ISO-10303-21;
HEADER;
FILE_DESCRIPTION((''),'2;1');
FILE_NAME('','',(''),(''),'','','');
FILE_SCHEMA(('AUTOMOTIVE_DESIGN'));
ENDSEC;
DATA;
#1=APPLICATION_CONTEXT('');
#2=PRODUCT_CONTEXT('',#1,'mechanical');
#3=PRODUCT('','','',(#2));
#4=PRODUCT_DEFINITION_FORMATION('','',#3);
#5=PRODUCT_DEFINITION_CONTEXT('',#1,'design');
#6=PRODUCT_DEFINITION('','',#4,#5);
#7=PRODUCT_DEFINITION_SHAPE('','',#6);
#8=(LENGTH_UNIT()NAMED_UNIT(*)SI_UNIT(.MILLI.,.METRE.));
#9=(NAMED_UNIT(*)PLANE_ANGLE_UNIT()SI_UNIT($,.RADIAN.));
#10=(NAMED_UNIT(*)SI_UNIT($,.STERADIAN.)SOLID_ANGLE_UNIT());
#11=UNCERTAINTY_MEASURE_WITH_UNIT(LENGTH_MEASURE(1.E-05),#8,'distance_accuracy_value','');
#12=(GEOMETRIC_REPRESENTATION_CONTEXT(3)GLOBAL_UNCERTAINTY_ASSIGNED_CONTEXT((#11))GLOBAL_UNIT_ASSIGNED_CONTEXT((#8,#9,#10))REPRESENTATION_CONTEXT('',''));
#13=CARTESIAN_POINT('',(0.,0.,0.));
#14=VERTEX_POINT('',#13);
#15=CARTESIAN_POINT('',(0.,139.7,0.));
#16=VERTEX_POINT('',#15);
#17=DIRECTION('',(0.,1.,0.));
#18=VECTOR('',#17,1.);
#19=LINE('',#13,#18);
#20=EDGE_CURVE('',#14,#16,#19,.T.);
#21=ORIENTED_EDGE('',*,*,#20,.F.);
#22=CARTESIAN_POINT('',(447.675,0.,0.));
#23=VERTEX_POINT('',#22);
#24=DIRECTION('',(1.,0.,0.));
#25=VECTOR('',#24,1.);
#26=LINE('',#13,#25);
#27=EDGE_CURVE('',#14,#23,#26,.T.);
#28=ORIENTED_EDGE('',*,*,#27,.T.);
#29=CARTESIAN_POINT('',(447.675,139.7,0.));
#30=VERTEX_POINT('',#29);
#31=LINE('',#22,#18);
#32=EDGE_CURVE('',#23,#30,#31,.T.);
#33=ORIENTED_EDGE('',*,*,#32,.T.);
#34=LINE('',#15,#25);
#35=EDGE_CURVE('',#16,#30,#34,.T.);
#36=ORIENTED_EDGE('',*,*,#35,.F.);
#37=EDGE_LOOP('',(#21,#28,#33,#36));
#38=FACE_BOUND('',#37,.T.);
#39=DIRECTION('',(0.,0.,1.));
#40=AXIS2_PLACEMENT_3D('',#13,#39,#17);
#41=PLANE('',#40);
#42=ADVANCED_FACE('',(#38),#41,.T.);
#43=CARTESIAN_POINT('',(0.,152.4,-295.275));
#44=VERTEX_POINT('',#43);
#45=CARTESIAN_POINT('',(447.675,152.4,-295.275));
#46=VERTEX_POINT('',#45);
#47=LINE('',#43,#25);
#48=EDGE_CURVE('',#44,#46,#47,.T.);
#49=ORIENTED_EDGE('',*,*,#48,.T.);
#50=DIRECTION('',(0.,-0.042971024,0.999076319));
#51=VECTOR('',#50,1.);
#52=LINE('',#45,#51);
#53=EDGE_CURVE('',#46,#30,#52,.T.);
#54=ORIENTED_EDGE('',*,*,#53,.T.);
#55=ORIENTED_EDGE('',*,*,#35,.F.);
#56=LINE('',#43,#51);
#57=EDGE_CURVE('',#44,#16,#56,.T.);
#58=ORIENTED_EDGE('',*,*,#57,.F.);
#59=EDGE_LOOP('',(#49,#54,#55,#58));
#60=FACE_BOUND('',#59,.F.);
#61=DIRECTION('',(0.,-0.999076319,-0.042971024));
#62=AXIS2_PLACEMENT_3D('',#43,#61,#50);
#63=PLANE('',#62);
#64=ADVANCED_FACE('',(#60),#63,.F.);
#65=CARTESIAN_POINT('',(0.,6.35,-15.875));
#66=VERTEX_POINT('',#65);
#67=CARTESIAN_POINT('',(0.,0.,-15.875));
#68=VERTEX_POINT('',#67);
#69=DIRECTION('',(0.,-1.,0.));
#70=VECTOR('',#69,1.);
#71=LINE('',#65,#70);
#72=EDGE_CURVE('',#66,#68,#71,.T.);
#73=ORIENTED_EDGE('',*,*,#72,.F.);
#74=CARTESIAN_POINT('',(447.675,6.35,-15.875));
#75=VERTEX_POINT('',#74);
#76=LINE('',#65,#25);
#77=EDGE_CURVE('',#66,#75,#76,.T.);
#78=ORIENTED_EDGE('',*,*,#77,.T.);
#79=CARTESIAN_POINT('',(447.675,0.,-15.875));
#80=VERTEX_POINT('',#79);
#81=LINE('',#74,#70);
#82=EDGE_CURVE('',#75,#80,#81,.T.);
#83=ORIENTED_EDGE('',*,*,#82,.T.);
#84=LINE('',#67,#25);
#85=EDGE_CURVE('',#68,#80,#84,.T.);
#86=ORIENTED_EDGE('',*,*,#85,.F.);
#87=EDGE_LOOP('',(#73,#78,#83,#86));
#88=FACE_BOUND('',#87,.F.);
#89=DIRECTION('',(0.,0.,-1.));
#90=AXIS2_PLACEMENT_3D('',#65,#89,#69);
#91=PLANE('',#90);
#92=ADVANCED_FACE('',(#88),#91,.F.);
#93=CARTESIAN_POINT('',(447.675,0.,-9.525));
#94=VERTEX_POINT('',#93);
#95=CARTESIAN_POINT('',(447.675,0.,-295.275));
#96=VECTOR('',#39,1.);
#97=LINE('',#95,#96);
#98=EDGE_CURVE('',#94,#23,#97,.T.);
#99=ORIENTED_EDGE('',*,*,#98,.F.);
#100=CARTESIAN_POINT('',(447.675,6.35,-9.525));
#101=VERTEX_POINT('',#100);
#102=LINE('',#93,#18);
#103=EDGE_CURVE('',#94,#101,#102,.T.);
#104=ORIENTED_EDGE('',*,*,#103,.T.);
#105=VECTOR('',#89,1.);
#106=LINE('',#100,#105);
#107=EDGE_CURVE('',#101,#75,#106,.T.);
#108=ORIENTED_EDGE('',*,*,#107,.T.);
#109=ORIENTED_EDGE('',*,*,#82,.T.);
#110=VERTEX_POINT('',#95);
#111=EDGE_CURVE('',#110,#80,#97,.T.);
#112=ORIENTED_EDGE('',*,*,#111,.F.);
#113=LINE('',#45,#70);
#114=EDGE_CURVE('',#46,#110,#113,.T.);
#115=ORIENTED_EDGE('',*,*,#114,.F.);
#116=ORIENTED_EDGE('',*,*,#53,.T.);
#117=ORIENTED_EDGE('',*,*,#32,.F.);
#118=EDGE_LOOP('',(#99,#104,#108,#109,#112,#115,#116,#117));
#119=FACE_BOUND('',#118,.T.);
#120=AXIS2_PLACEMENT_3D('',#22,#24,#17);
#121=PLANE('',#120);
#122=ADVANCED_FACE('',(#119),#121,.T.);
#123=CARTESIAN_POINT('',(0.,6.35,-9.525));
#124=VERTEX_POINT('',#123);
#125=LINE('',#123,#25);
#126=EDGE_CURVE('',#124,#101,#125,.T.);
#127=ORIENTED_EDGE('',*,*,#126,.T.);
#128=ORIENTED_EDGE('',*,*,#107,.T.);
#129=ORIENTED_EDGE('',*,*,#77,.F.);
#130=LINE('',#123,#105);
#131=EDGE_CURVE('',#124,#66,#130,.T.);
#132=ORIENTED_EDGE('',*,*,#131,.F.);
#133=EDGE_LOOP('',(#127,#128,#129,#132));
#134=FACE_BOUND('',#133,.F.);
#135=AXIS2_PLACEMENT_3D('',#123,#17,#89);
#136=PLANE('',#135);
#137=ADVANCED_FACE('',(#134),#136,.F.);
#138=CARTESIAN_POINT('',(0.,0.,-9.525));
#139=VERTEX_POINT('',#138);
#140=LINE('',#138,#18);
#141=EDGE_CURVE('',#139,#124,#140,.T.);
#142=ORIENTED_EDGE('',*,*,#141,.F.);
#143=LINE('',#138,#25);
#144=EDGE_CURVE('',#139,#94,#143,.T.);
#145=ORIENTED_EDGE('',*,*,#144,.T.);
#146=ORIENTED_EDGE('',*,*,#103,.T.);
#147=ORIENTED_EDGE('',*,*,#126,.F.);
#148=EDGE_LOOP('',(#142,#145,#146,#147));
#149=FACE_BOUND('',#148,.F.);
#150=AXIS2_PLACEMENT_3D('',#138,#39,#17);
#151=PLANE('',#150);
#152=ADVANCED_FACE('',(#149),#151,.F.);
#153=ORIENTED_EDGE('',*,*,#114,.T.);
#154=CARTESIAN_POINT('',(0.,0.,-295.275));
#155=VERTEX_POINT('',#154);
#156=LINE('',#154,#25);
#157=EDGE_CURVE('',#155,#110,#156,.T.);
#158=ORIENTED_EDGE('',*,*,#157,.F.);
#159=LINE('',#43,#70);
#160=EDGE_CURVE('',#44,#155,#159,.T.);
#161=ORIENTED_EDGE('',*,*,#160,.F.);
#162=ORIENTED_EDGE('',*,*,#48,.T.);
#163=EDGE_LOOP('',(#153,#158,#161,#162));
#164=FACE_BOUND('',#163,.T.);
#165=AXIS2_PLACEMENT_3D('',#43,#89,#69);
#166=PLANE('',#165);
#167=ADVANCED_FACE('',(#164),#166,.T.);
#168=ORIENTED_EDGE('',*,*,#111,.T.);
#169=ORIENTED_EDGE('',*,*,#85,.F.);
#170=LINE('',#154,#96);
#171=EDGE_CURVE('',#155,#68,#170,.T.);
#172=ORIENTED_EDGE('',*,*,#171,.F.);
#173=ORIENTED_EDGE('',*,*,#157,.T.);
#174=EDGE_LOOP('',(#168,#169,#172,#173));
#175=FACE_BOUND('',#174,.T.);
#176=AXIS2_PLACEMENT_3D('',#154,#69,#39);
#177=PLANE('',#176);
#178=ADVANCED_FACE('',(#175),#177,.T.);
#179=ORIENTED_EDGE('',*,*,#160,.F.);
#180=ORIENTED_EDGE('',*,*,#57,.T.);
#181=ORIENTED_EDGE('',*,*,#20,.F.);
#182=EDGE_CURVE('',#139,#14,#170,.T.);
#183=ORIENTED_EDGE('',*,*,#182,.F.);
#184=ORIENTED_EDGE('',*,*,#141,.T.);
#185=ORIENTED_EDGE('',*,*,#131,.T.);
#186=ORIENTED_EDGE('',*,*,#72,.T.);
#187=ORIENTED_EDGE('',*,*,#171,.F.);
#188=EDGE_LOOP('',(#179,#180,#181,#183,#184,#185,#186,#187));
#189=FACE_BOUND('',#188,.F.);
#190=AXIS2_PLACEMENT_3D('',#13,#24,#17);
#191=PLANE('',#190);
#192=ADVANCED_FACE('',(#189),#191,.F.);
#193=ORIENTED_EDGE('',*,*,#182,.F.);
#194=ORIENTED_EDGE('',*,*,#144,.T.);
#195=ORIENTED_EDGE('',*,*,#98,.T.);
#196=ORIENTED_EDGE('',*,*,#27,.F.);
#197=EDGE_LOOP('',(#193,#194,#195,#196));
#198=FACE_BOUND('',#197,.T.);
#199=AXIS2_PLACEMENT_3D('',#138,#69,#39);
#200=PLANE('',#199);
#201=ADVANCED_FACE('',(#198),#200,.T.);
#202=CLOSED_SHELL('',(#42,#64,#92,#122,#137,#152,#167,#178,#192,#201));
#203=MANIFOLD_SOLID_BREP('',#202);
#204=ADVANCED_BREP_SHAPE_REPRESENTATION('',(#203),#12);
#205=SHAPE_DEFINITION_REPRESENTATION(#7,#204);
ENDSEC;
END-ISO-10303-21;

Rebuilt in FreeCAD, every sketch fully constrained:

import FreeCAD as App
import Part
import Sketcher

V = App.Vector
Q = App.Units.Quantity


def add_polygon(sketch, points):
    """Adds a closed chain of lines whose ends are joined by coincident constraints."""
    first, n = sketch.GeometryCount, len(points)
    for a, b in zip(points, points[1:] + points[:1]):
        sketch.addGeometry(Part.LineSegment(App.Vector(*a, 0), App.Vector(*b, 0)), False)
    for i in range(n):
        sketch.addConstraint(Sketcher.Constraint("Coincident", first + i, 2, first + (i + 1) % n, 1))

doc = App.newDocument("Part")
body = doc.addObject("PartDesign::Body", "Body")

# Sketch on YZ plane
sketch1 = body.newObject("Sketcher::SketchObject", "Sketch")
sketch1.AttachmentSupport = (doc.getObject("YZ_Plane"), [""])
sketch1.MapMode = "FlatFace"
add_polygon(sketch1, [(139.7, 0), (0, 0), (0, -9.525), (6.35, -9.525), (6.35, -15.875), (0, -15.875), (0, -295.275), (152.4, -295.275)])  # lines 0-7
sketch1.addConstraint([
    Sketcher.Constraint("Horizontal", 0),
    Sketcher.Constraint("Vertical", 1),
    Sketcher.Constraint("Horizontal", 2),
    Sketcher.Constraint("Vertical", 3),
    Sketcher.Constraint("Horizontal", 4),
    Sketcher.Constraint("Vertical", 5),
    Sketcher.Constraint("Horizontal", 6),
    Sketcher.Constraint("Coincident", 0, 2, -1, 1),
    Sketcher.Constraint("PointOnObject", 4, 2, -2),
    Sketcher.Constraint("Equal", 4, 3),
    Sketcher.Constraint("DistanceX", 6, 1, 6, 2, Q("6 in")),
    Sketcher.Constraint("DistanceX", 2, 1, 2, 2, Q("0.25 in")),
    Sketcher.Constraint("DistanceY", 1, 2, 1, 1, Q("0.375 in")),
    Sketcher.Constraint("DistanceY", 5, 2, 5, 1, Q("11 in")),
    Sketcher.Constraint("DistanceX", 0, 2, 0, 1, Q("5.5 in")),
])
pad1 = body.newObject("PartDesign::Pad", "Pad")
pad1.Profile = sketch1
pad1.Length = Q("17.625 in")

doc.recompute()
